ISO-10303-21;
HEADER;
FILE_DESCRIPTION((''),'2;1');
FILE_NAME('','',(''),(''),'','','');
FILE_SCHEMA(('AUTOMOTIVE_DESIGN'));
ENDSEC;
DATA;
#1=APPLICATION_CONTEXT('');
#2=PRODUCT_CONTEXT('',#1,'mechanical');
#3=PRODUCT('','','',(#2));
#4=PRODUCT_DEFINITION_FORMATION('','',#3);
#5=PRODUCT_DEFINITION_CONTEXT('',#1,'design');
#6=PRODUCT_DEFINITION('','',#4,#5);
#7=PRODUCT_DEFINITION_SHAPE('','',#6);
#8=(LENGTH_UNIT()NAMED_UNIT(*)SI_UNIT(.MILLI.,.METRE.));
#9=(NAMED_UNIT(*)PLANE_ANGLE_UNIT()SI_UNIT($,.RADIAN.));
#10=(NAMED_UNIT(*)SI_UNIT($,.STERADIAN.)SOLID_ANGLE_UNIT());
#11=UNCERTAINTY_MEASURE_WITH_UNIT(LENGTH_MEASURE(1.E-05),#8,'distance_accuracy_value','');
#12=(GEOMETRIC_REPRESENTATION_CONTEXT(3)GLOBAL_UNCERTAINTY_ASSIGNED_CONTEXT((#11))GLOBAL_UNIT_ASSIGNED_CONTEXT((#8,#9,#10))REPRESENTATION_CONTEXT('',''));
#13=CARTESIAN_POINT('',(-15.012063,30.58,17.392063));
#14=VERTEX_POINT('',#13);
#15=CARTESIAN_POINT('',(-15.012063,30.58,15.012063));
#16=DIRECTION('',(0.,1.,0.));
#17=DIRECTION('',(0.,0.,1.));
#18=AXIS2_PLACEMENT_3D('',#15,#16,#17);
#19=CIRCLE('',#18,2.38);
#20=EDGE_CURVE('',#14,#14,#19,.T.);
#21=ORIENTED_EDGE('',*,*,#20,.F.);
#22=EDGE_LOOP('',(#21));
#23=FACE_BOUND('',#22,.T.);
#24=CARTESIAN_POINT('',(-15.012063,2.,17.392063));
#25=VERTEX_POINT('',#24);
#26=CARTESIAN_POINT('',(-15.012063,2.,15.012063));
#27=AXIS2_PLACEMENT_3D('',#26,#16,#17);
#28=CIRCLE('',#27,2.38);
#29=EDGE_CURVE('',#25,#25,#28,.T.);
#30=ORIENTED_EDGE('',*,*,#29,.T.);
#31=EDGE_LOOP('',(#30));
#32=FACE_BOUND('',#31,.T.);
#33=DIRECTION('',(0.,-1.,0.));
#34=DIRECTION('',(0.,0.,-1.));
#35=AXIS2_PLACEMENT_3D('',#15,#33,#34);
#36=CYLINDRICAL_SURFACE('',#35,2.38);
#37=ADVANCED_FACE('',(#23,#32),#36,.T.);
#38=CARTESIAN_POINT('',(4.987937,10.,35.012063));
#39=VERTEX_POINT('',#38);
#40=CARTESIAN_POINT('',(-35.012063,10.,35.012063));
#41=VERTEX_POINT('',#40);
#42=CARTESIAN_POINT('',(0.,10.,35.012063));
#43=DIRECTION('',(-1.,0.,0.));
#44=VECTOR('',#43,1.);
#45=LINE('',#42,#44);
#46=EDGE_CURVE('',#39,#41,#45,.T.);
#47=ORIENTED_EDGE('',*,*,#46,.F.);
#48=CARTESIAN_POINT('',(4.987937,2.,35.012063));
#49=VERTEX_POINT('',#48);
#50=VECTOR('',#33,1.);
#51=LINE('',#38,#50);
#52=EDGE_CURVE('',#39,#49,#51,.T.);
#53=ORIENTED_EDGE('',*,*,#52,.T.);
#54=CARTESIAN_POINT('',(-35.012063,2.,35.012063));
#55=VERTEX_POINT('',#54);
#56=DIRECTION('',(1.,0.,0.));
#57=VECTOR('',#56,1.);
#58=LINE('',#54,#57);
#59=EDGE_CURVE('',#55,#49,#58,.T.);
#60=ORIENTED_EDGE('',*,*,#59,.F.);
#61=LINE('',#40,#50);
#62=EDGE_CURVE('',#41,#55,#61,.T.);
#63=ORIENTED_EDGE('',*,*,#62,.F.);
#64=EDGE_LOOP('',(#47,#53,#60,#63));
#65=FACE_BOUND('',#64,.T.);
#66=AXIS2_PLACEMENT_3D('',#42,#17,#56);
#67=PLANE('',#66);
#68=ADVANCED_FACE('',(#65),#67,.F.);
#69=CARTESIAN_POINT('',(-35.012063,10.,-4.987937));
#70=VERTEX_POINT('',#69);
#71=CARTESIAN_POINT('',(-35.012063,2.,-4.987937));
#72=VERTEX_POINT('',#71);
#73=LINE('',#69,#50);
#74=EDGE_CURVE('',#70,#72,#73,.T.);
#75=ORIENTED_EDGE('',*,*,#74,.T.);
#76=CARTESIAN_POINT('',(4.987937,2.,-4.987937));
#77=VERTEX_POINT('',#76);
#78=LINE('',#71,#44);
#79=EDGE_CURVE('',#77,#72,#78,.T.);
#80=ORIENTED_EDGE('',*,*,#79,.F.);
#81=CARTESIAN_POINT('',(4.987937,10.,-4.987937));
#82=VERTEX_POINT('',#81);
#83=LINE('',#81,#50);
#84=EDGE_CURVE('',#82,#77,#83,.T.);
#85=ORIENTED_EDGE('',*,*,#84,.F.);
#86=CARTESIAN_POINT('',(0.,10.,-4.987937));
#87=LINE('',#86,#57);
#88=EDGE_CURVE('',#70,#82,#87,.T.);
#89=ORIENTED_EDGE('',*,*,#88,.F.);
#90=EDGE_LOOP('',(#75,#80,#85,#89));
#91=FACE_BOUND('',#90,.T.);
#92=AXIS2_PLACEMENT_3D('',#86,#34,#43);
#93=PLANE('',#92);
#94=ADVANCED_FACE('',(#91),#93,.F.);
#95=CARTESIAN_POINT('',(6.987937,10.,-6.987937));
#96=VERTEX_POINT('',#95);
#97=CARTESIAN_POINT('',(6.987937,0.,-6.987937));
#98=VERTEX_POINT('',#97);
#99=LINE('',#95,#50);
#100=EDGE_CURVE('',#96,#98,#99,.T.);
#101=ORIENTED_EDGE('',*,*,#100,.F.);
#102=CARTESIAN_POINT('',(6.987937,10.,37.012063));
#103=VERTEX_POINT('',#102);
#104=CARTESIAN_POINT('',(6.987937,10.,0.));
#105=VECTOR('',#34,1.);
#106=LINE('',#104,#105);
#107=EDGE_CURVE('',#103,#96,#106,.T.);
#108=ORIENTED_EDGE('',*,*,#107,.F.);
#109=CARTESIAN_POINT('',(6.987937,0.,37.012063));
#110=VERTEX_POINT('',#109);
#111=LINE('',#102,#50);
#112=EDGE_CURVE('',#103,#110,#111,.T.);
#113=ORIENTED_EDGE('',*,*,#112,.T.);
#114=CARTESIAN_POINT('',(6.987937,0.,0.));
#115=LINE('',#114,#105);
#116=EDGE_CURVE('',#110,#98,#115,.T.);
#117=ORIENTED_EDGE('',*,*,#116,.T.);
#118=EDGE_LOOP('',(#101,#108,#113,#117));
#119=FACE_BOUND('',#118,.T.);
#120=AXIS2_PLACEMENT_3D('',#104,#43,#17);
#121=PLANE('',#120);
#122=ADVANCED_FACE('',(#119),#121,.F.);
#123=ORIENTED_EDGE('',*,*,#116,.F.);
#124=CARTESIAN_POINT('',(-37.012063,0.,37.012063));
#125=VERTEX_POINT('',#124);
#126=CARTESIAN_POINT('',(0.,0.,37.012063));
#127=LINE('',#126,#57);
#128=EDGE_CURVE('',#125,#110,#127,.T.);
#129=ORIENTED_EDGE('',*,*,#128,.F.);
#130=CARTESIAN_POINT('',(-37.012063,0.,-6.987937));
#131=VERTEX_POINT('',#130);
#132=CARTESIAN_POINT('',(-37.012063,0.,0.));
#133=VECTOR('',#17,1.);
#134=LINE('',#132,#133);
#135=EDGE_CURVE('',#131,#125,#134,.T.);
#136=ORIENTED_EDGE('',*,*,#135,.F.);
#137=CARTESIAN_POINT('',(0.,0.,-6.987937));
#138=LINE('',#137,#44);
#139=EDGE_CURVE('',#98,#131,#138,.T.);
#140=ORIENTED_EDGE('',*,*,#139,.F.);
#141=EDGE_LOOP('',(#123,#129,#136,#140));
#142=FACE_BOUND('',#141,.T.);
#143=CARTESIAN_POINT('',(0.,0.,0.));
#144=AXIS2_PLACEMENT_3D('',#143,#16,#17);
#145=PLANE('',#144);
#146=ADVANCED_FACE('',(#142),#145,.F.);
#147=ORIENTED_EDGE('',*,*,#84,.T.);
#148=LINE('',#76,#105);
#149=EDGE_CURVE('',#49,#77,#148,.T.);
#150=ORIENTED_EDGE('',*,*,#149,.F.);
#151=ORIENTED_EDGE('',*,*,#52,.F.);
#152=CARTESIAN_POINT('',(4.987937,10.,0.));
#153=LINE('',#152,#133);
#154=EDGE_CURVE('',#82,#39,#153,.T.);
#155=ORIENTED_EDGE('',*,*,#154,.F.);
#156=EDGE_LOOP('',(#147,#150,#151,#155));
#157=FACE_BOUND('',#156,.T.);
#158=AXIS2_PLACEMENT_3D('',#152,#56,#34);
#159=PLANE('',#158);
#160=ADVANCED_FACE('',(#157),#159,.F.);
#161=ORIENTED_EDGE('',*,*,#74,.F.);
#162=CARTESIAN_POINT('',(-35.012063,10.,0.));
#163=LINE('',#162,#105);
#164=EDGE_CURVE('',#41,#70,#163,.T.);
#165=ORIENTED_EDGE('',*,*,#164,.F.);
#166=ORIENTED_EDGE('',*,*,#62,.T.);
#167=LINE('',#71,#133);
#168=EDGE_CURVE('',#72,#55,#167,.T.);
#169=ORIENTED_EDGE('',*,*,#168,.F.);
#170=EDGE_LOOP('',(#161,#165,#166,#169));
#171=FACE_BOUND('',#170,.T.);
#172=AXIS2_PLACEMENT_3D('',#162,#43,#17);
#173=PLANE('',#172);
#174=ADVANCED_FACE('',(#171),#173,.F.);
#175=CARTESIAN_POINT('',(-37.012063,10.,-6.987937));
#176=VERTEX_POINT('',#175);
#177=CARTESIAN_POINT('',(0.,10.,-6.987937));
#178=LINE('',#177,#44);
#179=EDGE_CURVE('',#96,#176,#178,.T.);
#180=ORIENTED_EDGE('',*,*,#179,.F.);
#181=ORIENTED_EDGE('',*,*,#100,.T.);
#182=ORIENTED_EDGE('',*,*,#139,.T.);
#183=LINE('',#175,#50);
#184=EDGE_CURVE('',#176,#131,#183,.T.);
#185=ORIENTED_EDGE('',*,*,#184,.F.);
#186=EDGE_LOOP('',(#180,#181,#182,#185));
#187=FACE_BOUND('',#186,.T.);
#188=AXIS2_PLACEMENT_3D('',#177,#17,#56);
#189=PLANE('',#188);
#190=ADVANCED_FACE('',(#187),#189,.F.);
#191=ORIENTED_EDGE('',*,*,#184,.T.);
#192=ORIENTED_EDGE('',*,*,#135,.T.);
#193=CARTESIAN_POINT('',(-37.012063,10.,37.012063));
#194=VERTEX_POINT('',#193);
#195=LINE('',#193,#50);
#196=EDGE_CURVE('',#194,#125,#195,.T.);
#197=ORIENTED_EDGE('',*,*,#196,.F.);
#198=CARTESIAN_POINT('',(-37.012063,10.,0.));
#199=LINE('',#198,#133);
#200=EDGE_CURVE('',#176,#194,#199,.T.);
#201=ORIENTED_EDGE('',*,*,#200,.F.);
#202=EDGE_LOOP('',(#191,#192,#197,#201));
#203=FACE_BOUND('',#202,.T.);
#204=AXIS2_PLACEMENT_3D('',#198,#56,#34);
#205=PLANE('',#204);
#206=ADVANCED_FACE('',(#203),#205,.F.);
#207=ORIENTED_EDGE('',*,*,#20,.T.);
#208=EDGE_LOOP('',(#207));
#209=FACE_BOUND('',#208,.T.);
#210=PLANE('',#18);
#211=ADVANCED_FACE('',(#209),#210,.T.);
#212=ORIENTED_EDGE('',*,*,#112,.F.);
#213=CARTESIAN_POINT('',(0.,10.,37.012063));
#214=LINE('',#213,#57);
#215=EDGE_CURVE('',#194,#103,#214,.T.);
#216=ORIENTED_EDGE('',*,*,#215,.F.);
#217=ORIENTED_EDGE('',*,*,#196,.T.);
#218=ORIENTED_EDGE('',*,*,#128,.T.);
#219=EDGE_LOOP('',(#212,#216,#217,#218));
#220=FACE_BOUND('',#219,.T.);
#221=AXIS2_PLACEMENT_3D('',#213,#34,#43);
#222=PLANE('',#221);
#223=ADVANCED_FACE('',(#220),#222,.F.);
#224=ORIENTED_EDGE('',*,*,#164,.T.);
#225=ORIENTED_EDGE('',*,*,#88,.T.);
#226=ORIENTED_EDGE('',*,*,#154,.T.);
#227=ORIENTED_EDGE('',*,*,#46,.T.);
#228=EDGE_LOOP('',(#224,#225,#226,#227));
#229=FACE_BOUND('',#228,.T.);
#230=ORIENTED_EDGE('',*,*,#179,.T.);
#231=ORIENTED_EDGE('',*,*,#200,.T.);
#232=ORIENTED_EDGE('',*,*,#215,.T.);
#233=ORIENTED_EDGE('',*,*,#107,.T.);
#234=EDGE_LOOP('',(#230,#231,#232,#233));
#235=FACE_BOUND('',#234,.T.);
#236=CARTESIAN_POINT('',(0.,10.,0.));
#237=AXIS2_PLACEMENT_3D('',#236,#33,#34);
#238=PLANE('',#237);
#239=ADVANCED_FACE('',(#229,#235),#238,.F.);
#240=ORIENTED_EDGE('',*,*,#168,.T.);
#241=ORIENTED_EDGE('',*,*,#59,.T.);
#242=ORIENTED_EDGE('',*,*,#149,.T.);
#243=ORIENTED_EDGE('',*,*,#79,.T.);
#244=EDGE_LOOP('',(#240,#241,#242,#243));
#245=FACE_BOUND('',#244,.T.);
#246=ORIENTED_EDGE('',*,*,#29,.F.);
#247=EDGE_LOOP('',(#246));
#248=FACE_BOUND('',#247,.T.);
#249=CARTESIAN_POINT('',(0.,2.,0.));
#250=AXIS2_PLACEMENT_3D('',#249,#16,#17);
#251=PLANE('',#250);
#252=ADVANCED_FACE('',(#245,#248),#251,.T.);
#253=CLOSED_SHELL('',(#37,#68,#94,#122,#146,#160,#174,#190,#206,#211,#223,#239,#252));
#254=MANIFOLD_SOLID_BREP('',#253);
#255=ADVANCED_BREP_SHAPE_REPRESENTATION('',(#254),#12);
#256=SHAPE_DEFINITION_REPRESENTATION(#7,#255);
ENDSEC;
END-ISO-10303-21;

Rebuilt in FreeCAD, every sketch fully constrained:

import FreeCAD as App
import Part
import Sketcher
from FreeCAD import Vector


def add_polygon(sketch, points):
    """Adds a closed chain of lines whose ends are joined by coincident constraints."""
    first, n = sketch.GeometryCount, len(points)
    for a, b in zip(points, points[1:] + points[:1]):
        sketch.addGeometry(Part.LineSegment(App.Vector(*a, 0), App.Vector(*b, 0)), False)
    for i in range(n):
        sketch.addConstraint(Sketcher.Constraint("Coincident", first + i, 2, first + (i + 1) % n, 1))

doc = App.newDocument("Part")
params = doc.addObject("Spreadsheet::Sheet", "Params")
for row, (alias, value) in enumerate([
    ("sketch1_width", "40 mm"),
    ("pad1_length", "2 mm"),
    ("sketch2_width", "44 mm"),
    ("sketch2_width2", "40 mm"),
    ("pad2_length", "10 mm"),
    ("sketch3_diameter", "4.76 mm"),
    ("pad3_length", "28.58 mm"),
], start=1):
    params.set(f"A{row}", alias)
    params.set(f"B{row}", "=" + value)
    params.setAlias(f"B{row}", alias)

body = doc.addObject("PartDesign::Body", "Body")

sketch1 = body.newObject("Sketcher::SketchObject", "Sketch")
sketch1.AttachmentSupport = (doc.getObject("XZ_Plane"), [""])
sketch1.MapMode = "FlatFace"
add_polygon(sketch1, [(-35, -5), (-35, 35), (5, 35), (5, -5)])
sketch1.addConstraint(Sketcher.Constraint("Vertical", 0))
sketch1.addConstraint(Sketcher.Constraint("Horizontal", 1))
sketch1.addConstraint(Sketcher.Constraint("Vertical", 2))
sketch1.addConstraint(Sketcher.Constraint("Horizontal", 3))
sketch1.addConstraint(Sketcher.Constraint("Equal", 3, 0))
sketch1.addConstraint(Sketcher.Constraint("DistanceX", 1, 1, 1, 2, 40.0))
sketch1.addConstraint(Sketcher.Constraint("DistanceX", 0, 2, -1, 1, 35.012063))
sketch1.addConstraint(Sketcher.Constraint("DistanceY", -1, 1, 0, 2, 35.012063))
sketch1.setExpression("Constraints[9]", "Params.sketch1_width")
pad1 = body.newObject("PartDesign::Pad", "Pad")
pad1.Profile = sketch1
pad1.setExpression("Length", "Params.pad1_length")
pad1.Reversed = True

sketch2 = body.newObject("Sketcher::SketchObject", "Sketch001")
sketch2.AttachmentSupport = (doc.getObject("XZ_Plane"), [""])
sketch2.MapMode = "FlatFace"
add_polygon(sketch2, [(-37, 37), (-37, -7), (7, -7), (7, 37)])
add_polygon(sketch2, [(5, -5), (-35, -5), (-35, 35), (5, 35)])
sketch2.addConstraint(Sketcher.Constraint("Vertical", 0))
sketch2.addConstraint(Sketcher.Constraint("Horizontal", 1))
sketch2.addConstraint(Sketcher.Constraint("Vertical", 2))
sketch2.addConstraint(Sketcher.Constraint("Horizontal", 3))
sketch2.addConstraint(Sketcher.Constraint("Horizontal", 4))
sketch2.addConstraint(Sketcher.Constraint("Vertical", 5))
sketch2.addConstraint(Sketcher.Constraint("Horizontal", 6))
sketch2.addConstraint(Sketcher.Constraint("Vertical", 7))
sketch2.addConstraint(Sketcher.Constraint("Equal", 3, 0))
sketch2.addConstraint(Sketcher.Constraint("Equal", 6, 5))
sketch2.addConstraint(Sketcher.Constraint("DistanceX", 1, 1, 1, 2, 44.0))
sketch2.addConstraint(Sketcher.Constraint("DistanceX", 4, 2, 4, 1, 40.0))
sketch2.addConstraint(Sketcher.Constraint("DistanceX", 0, 2, 4, 2, 2.0))
sketch2.addConstraint(Sketcher.Constraint("DistanceY", 0, 2, 4, 2, 2.0))
sketch2.addConstraint(Sketcher.Constraint("DistanceX", 0, 2, -1, 1, 37.012063))
sketch2.addConstraint(Sketcher.Constraint("DistanceY", 0, 2, -1, 1, 6.987937))
sketch2.setExpression("Constraints[18]", "Params.sketch2_width")
sketch2.setExpression("Constraints[19]", "Params.sketch2_width2")
pad2 = body.newObject("PartDesign::Pad", "Pad001")
pad2.Profile = sketch2
pad2.setExpression("Length", "Params.pad2_length")
pad2.Reversed = True

sketch3 = body.newObject("Sketcher::SketchObject", "Sketch002")
sketch3.AttachmentSupport = (doc.getObject("XZ_Plane"), [""])
sketch3.MapMode = "FlatFace"
sketch3.AttachmentOffset = App.Placement(Vector(0, 0, -2), App.Rotation())
sketch3.addGeometry(Part.Circle(Vector(-15, 15, 0), Vector(0, 0, 1), 2.4), False)
sketch3.addConstraint(Sketcher.Constraint("Diameter", 0, 4.76))
sketch3.addConstraint(Sketcher.Constraint("DistanceX", 0, 3, -1, 1, 15.012063))
sketch3.addConstraint(Sketcher.Constraint("DistanceY", -1, 1, 0, 3, 15.012063))
sketch3.setExpression("Constraints[0]", "Params.sketch3_diameter")
pad3 = body.newObject("PartDesign::Pad", "Pad002")
pad3.Profile = sketch3
pad3.setExpression("Length", "Params.pad3_length")
pad3.Reversed = True

doc.recompute()
